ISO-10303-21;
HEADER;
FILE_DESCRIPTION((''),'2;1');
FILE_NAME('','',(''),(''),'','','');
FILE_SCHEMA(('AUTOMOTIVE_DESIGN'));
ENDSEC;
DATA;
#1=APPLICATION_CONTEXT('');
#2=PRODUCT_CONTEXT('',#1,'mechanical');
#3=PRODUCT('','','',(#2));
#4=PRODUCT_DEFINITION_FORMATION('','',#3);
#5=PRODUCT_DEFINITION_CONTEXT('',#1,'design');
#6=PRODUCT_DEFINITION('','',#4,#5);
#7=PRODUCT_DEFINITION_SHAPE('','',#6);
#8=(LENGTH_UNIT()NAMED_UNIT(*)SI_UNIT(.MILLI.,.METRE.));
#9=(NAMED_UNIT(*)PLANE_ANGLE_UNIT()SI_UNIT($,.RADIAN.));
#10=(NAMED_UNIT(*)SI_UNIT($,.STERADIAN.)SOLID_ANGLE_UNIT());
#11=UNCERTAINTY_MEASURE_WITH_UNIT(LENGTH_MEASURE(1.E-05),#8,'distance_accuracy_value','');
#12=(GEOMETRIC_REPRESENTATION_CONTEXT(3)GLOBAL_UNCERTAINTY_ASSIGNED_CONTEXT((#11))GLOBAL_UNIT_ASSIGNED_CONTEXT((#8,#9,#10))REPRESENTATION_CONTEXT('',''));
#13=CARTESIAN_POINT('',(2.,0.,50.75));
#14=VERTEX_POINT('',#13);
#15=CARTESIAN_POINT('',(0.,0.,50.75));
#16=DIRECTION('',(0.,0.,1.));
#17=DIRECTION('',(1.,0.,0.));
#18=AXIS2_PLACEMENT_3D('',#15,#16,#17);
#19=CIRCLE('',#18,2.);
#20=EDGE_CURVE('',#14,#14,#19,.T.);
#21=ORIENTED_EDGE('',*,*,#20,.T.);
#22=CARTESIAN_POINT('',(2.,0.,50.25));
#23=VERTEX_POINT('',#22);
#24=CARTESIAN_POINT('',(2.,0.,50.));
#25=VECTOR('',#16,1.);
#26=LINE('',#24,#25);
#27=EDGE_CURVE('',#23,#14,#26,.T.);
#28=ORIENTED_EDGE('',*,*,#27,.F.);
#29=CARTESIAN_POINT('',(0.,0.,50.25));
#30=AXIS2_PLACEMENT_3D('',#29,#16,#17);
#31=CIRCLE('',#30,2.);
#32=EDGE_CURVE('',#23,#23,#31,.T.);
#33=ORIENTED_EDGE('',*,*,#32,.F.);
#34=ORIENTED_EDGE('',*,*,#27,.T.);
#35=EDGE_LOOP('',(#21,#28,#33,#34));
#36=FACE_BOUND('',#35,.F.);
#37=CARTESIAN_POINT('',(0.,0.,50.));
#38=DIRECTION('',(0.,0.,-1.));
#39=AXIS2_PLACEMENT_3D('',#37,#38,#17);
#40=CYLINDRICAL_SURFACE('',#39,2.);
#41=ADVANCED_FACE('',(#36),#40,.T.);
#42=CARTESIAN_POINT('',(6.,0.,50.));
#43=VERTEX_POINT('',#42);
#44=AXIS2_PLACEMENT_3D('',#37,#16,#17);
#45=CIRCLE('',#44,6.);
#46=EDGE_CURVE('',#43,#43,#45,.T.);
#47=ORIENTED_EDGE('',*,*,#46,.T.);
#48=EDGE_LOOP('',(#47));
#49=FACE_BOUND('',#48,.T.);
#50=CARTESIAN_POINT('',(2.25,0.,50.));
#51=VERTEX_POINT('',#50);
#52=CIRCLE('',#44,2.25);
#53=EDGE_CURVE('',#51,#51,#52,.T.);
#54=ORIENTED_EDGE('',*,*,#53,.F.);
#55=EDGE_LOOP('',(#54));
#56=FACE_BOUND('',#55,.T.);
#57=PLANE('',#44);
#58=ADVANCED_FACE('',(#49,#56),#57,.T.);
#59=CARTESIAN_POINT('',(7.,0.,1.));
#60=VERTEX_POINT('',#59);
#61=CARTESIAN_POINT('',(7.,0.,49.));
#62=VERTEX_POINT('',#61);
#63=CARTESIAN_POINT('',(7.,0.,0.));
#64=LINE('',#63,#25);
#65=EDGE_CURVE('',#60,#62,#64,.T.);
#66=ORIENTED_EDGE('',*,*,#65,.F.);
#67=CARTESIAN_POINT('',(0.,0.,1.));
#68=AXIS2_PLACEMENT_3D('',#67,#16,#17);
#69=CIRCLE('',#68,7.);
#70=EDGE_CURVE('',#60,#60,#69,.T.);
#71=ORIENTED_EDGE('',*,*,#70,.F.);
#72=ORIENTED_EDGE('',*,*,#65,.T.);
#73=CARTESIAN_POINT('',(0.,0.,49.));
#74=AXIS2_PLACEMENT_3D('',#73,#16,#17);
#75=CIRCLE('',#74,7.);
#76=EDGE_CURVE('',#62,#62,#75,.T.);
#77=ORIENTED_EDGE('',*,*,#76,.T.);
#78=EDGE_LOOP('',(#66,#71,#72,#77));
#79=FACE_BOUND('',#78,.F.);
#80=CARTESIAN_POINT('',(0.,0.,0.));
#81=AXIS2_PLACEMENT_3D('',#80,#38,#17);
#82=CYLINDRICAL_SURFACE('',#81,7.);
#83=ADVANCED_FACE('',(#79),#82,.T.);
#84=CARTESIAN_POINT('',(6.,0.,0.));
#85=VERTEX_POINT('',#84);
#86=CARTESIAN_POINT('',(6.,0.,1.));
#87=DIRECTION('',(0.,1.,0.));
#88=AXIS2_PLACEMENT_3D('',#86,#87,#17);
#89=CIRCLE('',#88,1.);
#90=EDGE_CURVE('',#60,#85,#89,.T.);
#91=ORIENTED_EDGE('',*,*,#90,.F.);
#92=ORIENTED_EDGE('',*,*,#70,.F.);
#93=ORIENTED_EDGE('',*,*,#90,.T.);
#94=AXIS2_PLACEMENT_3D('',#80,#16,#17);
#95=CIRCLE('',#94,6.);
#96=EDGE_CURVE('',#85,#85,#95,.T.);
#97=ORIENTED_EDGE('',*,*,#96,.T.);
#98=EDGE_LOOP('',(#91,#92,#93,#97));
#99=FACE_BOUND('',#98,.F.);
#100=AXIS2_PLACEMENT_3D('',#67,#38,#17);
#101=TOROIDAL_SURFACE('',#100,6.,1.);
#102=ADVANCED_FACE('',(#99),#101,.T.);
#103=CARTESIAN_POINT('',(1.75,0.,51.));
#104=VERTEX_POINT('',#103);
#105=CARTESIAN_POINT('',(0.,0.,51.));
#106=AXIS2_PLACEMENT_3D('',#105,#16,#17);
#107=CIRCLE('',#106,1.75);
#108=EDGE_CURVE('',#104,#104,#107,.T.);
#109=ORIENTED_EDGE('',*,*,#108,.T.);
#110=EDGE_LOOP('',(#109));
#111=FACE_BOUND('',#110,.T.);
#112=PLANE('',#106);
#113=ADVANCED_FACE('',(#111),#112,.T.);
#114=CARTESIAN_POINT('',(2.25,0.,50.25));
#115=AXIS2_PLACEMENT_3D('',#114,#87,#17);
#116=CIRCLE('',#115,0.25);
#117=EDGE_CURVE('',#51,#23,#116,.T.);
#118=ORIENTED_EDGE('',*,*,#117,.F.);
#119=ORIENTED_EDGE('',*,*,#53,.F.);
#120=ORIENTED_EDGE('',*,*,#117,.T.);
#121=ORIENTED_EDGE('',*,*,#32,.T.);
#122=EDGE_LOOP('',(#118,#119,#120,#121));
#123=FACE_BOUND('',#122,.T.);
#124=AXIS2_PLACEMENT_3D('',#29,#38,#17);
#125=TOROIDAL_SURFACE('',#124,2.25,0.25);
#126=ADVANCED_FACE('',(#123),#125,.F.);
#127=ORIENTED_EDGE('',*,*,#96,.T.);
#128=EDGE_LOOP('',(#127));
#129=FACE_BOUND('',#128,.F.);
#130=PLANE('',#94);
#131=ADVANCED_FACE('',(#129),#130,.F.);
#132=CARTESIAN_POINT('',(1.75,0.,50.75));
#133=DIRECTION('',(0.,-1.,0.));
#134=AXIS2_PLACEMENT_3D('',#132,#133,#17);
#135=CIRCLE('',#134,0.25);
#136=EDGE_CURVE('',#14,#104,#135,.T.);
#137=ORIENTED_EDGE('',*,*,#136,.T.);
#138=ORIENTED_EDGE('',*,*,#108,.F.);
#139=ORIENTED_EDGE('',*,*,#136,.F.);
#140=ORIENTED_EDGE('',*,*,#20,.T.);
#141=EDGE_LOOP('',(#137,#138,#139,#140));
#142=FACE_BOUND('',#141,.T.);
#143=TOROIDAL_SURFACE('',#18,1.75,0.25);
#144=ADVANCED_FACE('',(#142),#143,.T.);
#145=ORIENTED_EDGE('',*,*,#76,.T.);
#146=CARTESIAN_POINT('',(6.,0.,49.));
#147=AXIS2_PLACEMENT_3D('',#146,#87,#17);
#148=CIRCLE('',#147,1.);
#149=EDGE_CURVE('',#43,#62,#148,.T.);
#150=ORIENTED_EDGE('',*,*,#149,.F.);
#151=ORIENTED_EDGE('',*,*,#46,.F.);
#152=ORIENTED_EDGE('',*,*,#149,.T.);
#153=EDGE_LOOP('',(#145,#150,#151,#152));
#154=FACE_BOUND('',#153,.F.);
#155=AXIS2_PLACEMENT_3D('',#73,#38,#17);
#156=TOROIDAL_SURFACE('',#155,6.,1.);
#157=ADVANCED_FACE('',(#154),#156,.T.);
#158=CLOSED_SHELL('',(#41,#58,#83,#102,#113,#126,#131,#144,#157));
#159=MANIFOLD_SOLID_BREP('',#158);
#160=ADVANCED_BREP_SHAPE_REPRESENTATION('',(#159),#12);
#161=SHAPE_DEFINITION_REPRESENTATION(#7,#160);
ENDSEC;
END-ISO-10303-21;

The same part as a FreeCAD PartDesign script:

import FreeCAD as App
import Part
import Sketcher
from FreeCAD import Vector


def edges_at(feature, points):
    """Names of the edges that pass closest to the given points."""
    edges = feature.Shape.Edges
    near = lambda p: min(range(len(edges)), key=lambda i: edges[i].distToShape(Part.Vertex(*p))[0])
    return sorted({f"Edge{near(p) + 1}" for p in points})

doc = App.newDocument("Part")
body = doc.addObject("PartDesign::Body", "Body")

# Sketch on XY plane
sketch1 = body.newObject("Sketcher::SketchObject", "Sketch")
sketch1.AttachmentSupport = (doc.getObject("XY_Plane"), [""])
sketch1.MapMode = "FlatFace"
sketch1.addGeometry(Part.Circle(Vector(0, 0, 0), Vector(0, 0, 1), 7), False)
sketch1.addConstraint(Sketcher.Constraint("Coincident", 0, 3, -1, 1))
sketch1.addConstraint(Sketcher.Constraint("Diameter", 0, 14.0))
pad1 = body.newObject("PartDesign::Pad", "Pad")
pad1.Profile = sketch1
pad1.Length = 50

# Sketch on XY plane
sketch2 = body.newObject("Sketcher::SketchObject", "Sketch001")
sketch2.AttachmentSupport = (doc.getObject("XY_Plane"), [""])
sketch2.MapMode = "FlatFace"
sketch2.AttachmentOffset = App.Placement(Vector(0, 0, 50), App.Rotation())
sketch2.addGeometry(Part.Circle(Vector(0, 0, 0), Vector(0, 0, 1), 2), False)
sketch2.addConstraint(Sketcher.Constraint("Coincident", 0, 3, -1, 1))
sketch2.addConstraint(Sketcher.Constraint("Diameter", 0, 4.0))
pad2 = body.newObject("PartDesign::Pad", "Pad001")
pad2.Profile = sketch2
pad2.Length = 1
doc.recompute()

fillet = body.newObject("PartDesign::Fillet", "Fillet")
fillet.Base = (pad2, edges_at(pad2, [(-2, 0, 51), (-2, 0, 50)]))
fillet.Radius = 0.25
doc.recompute()

fillet2 = body.newObject("PartDesign::Fillet", "Fillet001")
fillet2.Base = (fillet, edges_at(fillet, [(-7, 0, 50), (-7, 0, 0)]))
fillet2.Radius = 1

doc.recompute()
